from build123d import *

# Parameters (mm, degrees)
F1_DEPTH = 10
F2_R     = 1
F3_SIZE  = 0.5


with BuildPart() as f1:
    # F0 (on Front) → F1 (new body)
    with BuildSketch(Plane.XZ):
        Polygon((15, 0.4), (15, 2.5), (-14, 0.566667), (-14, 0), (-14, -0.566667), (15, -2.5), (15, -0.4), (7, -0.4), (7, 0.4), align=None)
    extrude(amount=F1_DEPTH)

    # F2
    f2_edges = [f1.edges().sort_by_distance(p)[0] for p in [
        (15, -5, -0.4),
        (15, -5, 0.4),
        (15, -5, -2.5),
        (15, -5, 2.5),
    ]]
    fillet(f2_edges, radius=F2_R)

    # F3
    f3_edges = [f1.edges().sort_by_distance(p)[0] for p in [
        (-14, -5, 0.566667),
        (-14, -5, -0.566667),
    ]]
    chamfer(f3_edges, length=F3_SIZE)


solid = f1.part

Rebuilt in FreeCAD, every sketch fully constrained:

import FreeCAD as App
import Part
import Sketcher

V = App.Vector


def edges_at(feature, points):
    """Names of the edges that pass closest to the given points."""
    edges = feature.Shape.Edges
    near = lambda p: min(range(len(edges)), key=lambda i: edges[i].distToShape(Part.Vertex(*p))[0])
    return sorted({f"Edge{near(p) + 1}" for p in points})

doc = App.newDocument("Part")
body = doc.addObject("PartDesign::Body", "Body")

sketch1 = body.newObject("Sketcher::SketchObject", "Sketch")
sketch1.AttachmentSupport = (doc.getObject("XZ_Plane"), [""])
sketch1.MapMode = "FlatFace"
sketch1.addGeometry([
    Part.LineSegment(V(15, 0.4, 0), V(15, 2.5, 0)),
    Part.LineSegment(V(15, 2.5, 0), V(-14, 0.6, 0)),
    Part.LineSegment(V(-14, 0.6, 0), V(-14, -0.6, 0)),
    Part.LineSegment(V(-14, -0.6, 0), V(15, -2.5, 0)),
    Part.LineSegment(V(15, -2.5, 0), V(15, -0.4, 0)),
    Part.LineSegment(V(15, -0.4, 0), V(7, -0.4, 0)),
    Part.LineSegment(V(7, -0.4, 0), V(7, 0.4, 0)),
    Part.LineSegment(V(7, 0.4, 0), V(15, 0.4, 0)),
], False)
sketch1.addConstraint([
    Sketcher.Constraint("Coincident", 0, 2, 1, 1),
    Sketcher.Constraint("Coincident", 1, 2, 2, 1),
    Sketcher.Constraint("Coincident", 2, 2, 3, 1),
    Sketcher.Constraint("Coincident", 3, 2, 4, 1),
    Sketcher.Constraint("Coincident", 4, 2, 5, 1),
    Sketcher.Constraint("Coincident", 5, 2, 6, 1),
    Sketcher.Constraint("Coincident", 6, 2, 7, 1),
    Sketcher.Constraint("Coincident", 7, 2, 0, 1),
    Sketcher.Constraint("Vertical", 0),
    Sketcher.Constraint("Vertical", 2),
    Sketcher.Constraint("Vertical", 4),
    Sketcher.Constraint("Horizontal", 5),
    Sketcher.Constraint("Vertical", 6),
    Sketcher.Constraint("Horizontal", 7),
    Sketcher.Constraint("Symmetric", 0, 2, 3, 2, -1),
    Sketcher.Constraint("Equal", 0, 4),
    Sketcher.Constraint("Equal", 1, 3),
    Sketcher.Constraint("DistanceX", 5, 2, 5, 1, 8.0),
    Sketcher.Constraint("DistanceY", 0, 1, 0, 2, 2.1),
    Sketcher.Constraint("DistanceY", 6, 1, 6, 2, 0.8),
    Sketcher.Constraint("DistanceX", -1, 1, 0, 2, 15.0),
    Sketcher.Constraint("DistanceX", 1, 2, -1, 1, 14.0),
    Sketcher.Constraint("DistanceY", 2, 2, 2, 1, 1.133334),
])
pad1 = body.newObject("PartDesign::Pad", "Pad")
pad1.Profile = sketch1
pad1.Length = 10
doc.recompute()

fillet = body.newObject("PartDesign::Fillet", "Fillet")
fillet.Base = (pad1, edges_at(pad1, [
    (15, -5, -0.4),
    (15, -5, 0.4),
    (15, -5, -2.5),
    (15, -5, 2.5),
]))
fillet.Radius = 1
doc.recompute()

chamfer = body.newObject("PartDesign::Chamfer", "Chamfer")
chamfer.Base = (fillet, edges_at(fillet, [(-14, -5, 0.567), (-14, -5, -0.567)]))
chamfer.Size = 0.5

doc.recompute()
